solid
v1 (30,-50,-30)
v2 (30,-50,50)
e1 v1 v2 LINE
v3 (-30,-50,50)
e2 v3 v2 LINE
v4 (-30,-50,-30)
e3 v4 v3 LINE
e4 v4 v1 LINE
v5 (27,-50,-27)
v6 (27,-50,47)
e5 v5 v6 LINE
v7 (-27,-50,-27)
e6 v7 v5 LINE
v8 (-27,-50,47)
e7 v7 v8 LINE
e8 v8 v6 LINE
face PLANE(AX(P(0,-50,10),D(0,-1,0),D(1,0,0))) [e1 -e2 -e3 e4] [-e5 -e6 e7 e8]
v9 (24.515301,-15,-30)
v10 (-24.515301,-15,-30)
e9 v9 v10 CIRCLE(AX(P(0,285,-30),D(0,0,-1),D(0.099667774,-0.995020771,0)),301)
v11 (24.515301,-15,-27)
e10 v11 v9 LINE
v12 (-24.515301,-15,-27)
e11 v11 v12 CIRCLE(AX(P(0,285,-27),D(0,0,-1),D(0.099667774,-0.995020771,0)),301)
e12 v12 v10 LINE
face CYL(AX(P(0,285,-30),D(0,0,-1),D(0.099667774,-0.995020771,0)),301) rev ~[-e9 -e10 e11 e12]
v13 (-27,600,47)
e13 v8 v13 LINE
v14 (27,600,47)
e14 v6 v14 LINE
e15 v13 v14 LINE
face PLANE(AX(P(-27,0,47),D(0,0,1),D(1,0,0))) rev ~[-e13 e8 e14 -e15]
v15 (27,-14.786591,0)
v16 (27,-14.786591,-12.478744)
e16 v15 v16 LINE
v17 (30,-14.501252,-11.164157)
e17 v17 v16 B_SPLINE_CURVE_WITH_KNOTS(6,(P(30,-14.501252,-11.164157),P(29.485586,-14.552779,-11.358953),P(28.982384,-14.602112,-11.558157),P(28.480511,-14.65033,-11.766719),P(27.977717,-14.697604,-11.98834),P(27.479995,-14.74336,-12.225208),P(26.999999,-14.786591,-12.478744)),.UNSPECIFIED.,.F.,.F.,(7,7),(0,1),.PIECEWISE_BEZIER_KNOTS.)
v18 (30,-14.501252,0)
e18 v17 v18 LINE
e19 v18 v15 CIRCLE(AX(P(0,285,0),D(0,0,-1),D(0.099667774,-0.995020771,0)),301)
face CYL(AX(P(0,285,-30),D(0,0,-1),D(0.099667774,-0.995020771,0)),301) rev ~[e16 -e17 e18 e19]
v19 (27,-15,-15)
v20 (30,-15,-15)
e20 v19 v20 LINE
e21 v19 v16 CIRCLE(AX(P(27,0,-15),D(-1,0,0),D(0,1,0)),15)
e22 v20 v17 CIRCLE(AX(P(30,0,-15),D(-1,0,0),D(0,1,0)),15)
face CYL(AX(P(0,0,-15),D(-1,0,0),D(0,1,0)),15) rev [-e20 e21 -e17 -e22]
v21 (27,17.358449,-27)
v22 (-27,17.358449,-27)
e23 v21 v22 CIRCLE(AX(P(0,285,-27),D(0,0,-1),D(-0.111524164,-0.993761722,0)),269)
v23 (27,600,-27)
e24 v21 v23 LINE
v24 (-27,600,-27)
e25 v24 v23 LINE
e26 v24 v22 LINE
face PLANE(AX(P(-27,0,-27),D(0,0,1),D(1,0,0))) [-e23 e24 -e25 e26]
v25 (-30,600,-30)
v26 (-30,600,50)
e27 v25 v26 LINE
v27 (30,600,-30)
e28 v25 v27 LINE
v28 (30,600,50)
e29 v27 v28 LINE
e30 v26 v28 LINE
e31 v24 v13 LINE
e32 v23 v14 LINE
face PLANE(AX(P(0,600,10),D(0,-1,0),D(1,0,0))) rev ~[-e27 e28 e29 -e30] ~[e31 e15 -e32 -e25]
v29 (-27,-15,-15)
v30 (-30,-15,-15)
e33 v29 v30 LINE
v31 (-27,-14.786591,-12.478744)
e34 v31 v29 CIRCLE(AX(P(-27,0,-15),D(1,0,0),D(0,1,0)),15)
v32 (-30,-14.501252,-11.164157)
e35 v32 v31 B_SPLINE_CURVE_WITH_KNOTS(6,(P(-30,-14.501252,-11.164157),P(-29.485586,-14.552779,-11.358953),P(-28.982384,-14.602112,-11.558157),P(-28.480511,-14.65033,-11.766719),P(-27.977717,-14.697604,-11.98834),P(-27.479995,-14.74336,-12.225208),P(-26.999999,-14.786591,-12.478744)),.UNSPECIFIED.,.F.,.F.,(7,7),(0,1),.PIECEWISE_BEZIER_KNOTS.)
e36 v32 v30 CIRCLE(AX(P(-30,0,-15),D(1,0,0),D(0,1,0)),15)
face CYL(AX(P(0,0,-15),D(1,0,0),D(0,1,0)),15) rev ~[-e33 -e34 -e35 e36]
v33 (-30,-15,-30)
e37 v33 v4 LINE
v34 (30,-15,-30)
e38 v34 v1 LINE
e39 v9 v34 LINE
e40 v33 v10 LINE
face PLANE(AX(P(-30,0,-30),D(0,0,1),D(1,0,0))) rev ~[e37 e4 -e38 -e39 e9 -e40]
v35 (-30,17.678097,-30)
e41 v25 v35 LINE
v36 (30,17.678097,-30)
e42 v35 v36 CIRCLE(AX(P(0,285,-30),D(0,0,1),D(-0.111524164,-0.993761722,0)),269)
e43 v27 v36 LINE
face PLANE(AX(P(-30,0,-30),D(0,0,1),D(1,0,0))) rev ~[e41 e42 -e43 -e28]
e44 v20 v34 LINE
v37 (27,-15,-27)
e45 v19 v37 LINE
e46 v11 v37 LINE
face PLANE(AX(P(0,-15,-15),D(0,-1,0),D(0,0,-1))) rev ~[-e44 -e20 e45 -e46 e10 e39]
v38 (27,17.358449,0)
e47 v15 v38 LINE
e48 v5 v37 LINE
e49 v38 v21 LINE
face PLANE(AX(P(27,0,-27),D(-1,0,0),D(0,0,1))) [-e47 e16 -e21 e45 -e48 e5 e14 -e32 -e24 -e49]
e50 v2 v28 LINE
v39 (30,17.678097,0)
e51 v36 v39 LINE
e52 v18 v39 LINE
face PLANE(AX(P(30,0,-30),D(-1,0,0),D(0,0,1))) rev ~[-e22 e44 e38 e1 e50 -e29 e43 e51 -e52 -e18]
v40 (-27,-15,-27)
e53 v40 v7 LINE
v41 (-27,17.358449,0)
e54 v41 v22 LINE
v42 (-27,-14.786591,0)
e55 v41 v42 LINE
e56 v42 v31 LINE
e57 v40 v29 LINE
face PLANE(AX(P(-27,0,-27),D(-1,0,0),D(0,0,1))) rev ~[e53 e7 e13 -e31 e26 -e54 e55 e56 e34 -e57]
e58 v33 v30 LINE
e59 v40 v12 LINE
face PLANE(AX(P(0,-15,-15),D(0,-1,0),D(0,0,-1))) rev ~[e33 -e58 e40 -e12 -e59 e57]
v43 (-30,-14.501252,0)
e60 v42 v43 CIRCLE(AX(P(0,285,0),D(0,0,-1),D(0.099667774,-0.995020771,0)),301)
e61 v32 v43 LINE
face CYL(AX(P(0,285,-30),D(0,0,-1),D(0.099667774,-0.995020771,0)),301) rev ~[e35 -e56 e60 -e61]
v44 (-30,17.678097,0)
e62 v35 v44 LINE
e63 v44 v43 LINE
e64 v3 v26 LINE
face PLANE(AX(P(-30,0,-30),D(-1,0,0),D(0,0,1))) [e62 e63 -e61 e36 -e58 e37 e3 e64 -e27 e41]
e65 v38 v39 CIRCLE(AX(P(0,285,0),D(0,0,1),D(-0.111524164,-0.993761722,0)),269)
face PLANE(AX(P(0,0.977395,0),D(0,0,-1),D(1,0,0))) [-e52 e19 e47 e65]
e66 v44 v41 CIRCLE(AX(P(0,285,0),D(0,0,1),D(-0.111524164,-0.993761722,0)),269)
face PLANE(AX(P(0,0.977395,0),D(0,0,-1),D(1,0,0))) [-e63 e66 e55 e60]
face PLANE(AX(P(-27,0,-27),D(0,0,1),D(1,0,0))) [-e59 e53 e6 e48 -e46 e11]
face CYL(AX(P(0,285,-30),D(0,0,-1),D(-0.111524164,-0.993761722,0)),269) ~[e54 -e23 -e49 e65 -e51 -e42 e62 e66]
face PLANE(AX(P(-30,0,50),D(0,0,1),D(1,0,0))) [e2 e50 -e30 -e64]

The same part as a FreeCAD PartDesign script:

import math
import FreeCAD as App
import Part
import Sketcher
Q = App.Units.Quantity

doc = App.newDocument("Part")
body = doc.addObject("PartDesign::Body", "Body")

sketch1 = body.newObject("Sketcher::SketchObject", "Sketch")
sketch1.AttachmentSupport = (doc.getObject("XZ_Plane"), [""])
sketch1.MapMode = "FlatFace"
sketch1.addGeometry(Part.LineSegment(App.Vector(-30, 50, 0), App.Vector(-30, -30, 0)), False)
sketch1.addGeometry(Part.LineSegment(App.Vector(-30, -30, 0), App.Vector(30, -30, 0)), False)
sketch1.addGeometry(Part.LineSegment(App.Vector(30, -30, 0), App.Vector(30, 50, 0)), False)
sketch1.addGeometry(Part.LineSegment(App.Vector(30, 50, 0), App.Vector(-30, 50, 0)), False)
sketch1.addGeometry(Part.LineSegment(App.Vector(27, -27, 0), App.Vector(-27, -27, 0)), False)
sketch1.addGeometry(Part.LineSegment(App.Vector(-27, -27, 0), App.Vector(-27, 47, 0)), False)
sketch1.addGeometry(Part.LineSegment(App.Vector(-27, 47, 0), App.Vector(27, 47, 0)), False)
sketch1.addGeometry(Part.LineSegment(App.Vector(27, 47, 0), App.Vector(27, -27, 0)), False)
sketch1.addConstraint(Sketcher.Constraint("Coincident", 0, 2, 1, 1))
sketch1.addConstraint(Sketcher.Constraint("Coincident", 1, 2, 2, 1))
sketch1.addConstraint(Sketcher.Constraint("Coincident", 2, 2, 3, 1))
sketch1.addConstraint(Sketcher.Constraint("Coincident", 3, 2, 0, 1))
sketch1.addConstraint(Sketcher.Constraint("Coincident", 4, 2, 5, 1))
sketch1.addConstraint(Sketcher.Constraint("Coincident", 5, 2, 6, 1))
sketch1.addConstraint(Sketcher.Constraint("Coincident", 6, 2, 7, 1))
sketch1.addConstraint(Sketcher.Constraint("Coincident", 7, 2, 4, 1))
sketch1.addConstraint(Sketcher.Constraint("Vertical", 0))
sketch1.addConstraint(Sketcher.Constraint("Horizontal", 1))
sketch1.addConstraint(Sketcher.Constraint("Vertical", 2))
sketch1.addConstraint(Sketcher.Constraint("Horizontal", 3))
sketch1.addConstraint(Sketcher.Constraint("Horizontal", 4))
sketch1.addConstraint(Sketcher.Constraint("Vertical", 5))
sketch1.addConstraint(Sketcher.Constraint("Horizontal", 6))
sketch1.addConstraint(Sketcher.Constraint("Vertical", 7))
sketch1.addConstraint(Sketcher.Constraint("DistanceX", 1, 1, 1, 2, Q("60 mm")))
sketch1.addConstraint(Sketcher.Constraint("DistanceX", 4, 2, 4, 1, Q("54 mm")))
sketch1.addConstraint(Sketcher.Constraint("DistanceY", 0, 2, 0, 1, Q("80 mm")))
sketch1.addConstraint(Sketcher.Constraint("DistanceY", 5, 1, 5, 2, Q("74 mm")))
sketch1.addConstraint(Sketcher.Constraint("DistanceX", 0, 2, -1, 1, Q("30 mm")))
sketch1.addConstraint(Sketcher.Constraint("DistanceY", 0, 2, -1, 1, Q("30 mm")))
sketch1.addConstraint(Sketcher.Constraint("DistanceX", 4, 2, -1, 1, Q("27 mm")))
sketch1.addConstraint(Sketcher.Constraint("DistanceY", 4, 2, -1, 1, Q("27 mm")))
pad1 = body.newObject("PartDesign::Pad", "Pad")
pad1.Profile = sketch1
pad1.Type = "TwoLengths"
pad1.Length = 600
pad1.Length2 = 50
pad1.Reversed = True

sketch2 = body.newObject("Sketcher::SketchObject", "Sketch001")
sketch2.AttachmentSupport = (doc.getObject("YZ_Plane"), [""])
sketch2.MapMode = "FlatFace"
sketch2.addGeometry(Part.LineSegment(App.Vector(15, -30, 0), App.Vector(15, -15, 0)), False)
sketch2.addGeometry(Part.ArcOfCircle(Part.Circle(App.Vector(0, -15, 0), App.Vector(0, 0, 1), 15), math.radians(0), math.radians(180)), False)
sketch2.addGeometry(Part.LineSegment(App.Vector(-15, -15, 0), App.Vector(-15, -30, 0)), False)
sketch2.addGeometry(Part.LineSegment(App.Vector(-15, -30, 0), App.Vector(15, -30, 0)), False)
sketch2.addConstraint(Sketcher.Constraint("Tangent", 0, 2, 1, 1))
sketch2.addConstraint(Sketcher.Constraint("Tangent", 1, 2, 2, 1))
sketch2.addConstraint(Sketcher.Constraint("Coincident", 2, 2, 3, 1))
sketch2.addConstraint(Sketcher.Constraint("Coincident", 3, 2, 0, 1))
sketch2.addConstraint(Sketcher.Constraint("Vertical", 0))
sketch2.addConstraint(Sketcher.Constraint("Vertical", 2))
sketch2.addConstraint(Sketcher.Constraint("Horizontal", 3))
sketch2.addConstraint(Sketcher.Constraint("PointOnObject", 1, 3, -2))
sketch2.addConstraint(Sketcher.Constraint("Radius", 1, Q("15 mm")))
sketch2.addConstraint(Sketcher.Constraint("DistanceY", 0, 1, 0, 2, Q("15 mm")))
sketch2.addConstraint(Sketcher.Constraint("DistanceY", 1, 3, -1, 1, Q("15 mm")))
pocket1 = body.newObject("PartDesign::Pocket", "Pocket")
pocket1.Profile = sketch2
pocket1.Type = "ThroughAll"
pocket1.Midplane = True

sketch3 = body.newObject("Sketcher::SketchObject", "Sketch002")
sketch3.AttachmentSupport = (doc.getObject("XY_Plane"), [""])
sketch3.MapMode = "FlatFace"
sketch3.AttachmentOffset = App.Placement(App.Vector(0, 0, -30), App.Rotation())
sketch3.addGeometry(Part.LineSegment(App.Vector(30, 18, 0), App.Vector(30, -15, 0)), False)
sketch3.addGeometry(Part.ArcOfCircle(Part.Circle(App.Vector(0, 285, 0), App.Vector(0, 0, 1), 301), math.radians(-95.72), math.radians(-84.28)), False)
sketch3.addGeometry(Part.LineSegment(App.Vector(-30, -15, 0), App.Vector(-30, 18, 0)), False)
sketch3.addGeometry(Part.ArcOfCircle(Part.Circle(App.Vector(0, 285, 0), App.Vector(0, 0, 1), 269), math.radians(-96.4), math.radians(-83.6)), False)
sketch3.addConstraint(Sketcher.Constraint("Coincident", 0, 2, 1, 2))
sketch3.addConstraint(Sketcher.Constraint("Coincident", 1, 1, 2, 1))
sketch3.addConstraint(Sketcher.Constraint("Coincident", 2, 2, 3, 1))
sketch3.addConstraint(Sketcher.Constraint("Coincident", 3, 2, 0, 1))
sketch3.addConstraint(Sketcher.Constraint("Vertical", 0))
sketch3.addConstraint(Sketcher.Constraint("Vertical", 2))
sketch3.addConstraint(Sketcher.Constraint("Coincident", 3, 3, 1, 3))
sketch3.addConstraint(Sketcher.Constraint("Symmetric", 0, 2, 1, 1, -2))
sketch3.addConstraint(Sketcher.Constraint("Radius", 1, Q("301 mm")))
sketch3.addConstraint(Sketcher.Constraint("Radius", 3, Q("269 mm")))
sketch3.addConstraint(Sketcher.Constraint("DistanceY", -1, 1, 1, 3, Q("285 mm")))
sketch3.addConstraint(Sketcher.Constraint("DistanceX", -1, 1, 0, 2, Q("30 mm")))
pocket2 = body.newObject("PartDesign::Pocket", "Pocket001")
pocket2.Profile = sketch3
pocket2.Length = 30
pocket2.Reversed = True

doc.recompute()
